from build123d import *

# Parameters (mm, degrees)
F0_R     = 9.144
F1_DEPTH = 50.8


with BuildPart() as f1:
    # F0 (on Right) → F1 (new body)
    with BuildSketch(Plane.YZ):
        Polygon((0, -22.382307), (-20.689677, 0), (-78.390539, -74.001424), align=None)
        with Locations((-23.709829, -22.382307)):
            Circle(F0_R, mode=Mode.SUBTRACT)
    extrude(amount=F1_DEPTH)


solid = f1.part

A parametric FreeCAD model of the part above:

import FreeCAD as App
import Part
import Sketcher

V = App.Vector
Q = App.Units.Quantity


def add_polygon(sketch, points):
    """Adds a closed chain of lines whose ends are joined by coincident constraints."""
    first, n = sketch.GeometryCount, len(points)
    for a, b in zip(points, points[1:] + points[:1]):
        sketch.addGeometry(Part.LineSegment(App.Vector(*a, 0), App.Vector(*b, 0)), False)
    for i in range(n):
        sketch.addConstraint(Sketcher.Constraint("Coincident", first + i, 2, first + (i + 1) % n, 1))

doc = App.newDocument("Part")
body = doc.addObject("PartDesign::Body", "Body")

# Sketch on YZ plane
sketch1 = doc.addObject("Sketcher::SketchObject", "Sketch")
body.addObject(sketch1)
sketch1.AttachmentSupport = (doc.YZ_Plane, [""])
sketch1.MapMode = "FlatFace"
add_polygon(sketch1, [(0, -22.382307), (-20.689677, 0), (-78.390539, -74.001424)])  # lines 0-2
sketch1.addGeometry(Part.Circle(V(-23.709829, -22.382307, 0), V(0, 0, 1), 9.144), False)  # 3
sketch1.addConstraint(Sketcher.Constraint("PointOnObject", 0, 2, -1))
sketch1.addConstraint(Sketcher.Constraint("PointOnObject", 2, 2, -2))
sketch1.addConstraint(Sketcher.Constraint("Horizontal", 3, 3, 2, 2))
sketch1.addConstraint(Sketcher.Constraint("Diameter", 3, Q("0.72 in")))
sketch1.addConstraint(Sketcher.Constraint("Distance", 0, Q("1.2 in")))
sketch1.addConstraint(Sketcher.Constraint("Distance", 1, 93.83816))
sketch1.addConstraint(Sketcher.Constraint("Distance", 2, 93.859522))
sketch1.addConstraint(Sketcher.Constraint("DistanceX", 3, 3, -1, 1, 23.709829))
sketch1.addConstraint(Sketcher.Constraint("DistanceX", 1, 2, -1, 1, 78.390539))
pad1 = doc.addObject("PartDesign::Pad", "Pad")
body.addObject(pad1)
pad1.Profile = sketch1
pad1.Length = Q("2 in")

doc.recompute()
